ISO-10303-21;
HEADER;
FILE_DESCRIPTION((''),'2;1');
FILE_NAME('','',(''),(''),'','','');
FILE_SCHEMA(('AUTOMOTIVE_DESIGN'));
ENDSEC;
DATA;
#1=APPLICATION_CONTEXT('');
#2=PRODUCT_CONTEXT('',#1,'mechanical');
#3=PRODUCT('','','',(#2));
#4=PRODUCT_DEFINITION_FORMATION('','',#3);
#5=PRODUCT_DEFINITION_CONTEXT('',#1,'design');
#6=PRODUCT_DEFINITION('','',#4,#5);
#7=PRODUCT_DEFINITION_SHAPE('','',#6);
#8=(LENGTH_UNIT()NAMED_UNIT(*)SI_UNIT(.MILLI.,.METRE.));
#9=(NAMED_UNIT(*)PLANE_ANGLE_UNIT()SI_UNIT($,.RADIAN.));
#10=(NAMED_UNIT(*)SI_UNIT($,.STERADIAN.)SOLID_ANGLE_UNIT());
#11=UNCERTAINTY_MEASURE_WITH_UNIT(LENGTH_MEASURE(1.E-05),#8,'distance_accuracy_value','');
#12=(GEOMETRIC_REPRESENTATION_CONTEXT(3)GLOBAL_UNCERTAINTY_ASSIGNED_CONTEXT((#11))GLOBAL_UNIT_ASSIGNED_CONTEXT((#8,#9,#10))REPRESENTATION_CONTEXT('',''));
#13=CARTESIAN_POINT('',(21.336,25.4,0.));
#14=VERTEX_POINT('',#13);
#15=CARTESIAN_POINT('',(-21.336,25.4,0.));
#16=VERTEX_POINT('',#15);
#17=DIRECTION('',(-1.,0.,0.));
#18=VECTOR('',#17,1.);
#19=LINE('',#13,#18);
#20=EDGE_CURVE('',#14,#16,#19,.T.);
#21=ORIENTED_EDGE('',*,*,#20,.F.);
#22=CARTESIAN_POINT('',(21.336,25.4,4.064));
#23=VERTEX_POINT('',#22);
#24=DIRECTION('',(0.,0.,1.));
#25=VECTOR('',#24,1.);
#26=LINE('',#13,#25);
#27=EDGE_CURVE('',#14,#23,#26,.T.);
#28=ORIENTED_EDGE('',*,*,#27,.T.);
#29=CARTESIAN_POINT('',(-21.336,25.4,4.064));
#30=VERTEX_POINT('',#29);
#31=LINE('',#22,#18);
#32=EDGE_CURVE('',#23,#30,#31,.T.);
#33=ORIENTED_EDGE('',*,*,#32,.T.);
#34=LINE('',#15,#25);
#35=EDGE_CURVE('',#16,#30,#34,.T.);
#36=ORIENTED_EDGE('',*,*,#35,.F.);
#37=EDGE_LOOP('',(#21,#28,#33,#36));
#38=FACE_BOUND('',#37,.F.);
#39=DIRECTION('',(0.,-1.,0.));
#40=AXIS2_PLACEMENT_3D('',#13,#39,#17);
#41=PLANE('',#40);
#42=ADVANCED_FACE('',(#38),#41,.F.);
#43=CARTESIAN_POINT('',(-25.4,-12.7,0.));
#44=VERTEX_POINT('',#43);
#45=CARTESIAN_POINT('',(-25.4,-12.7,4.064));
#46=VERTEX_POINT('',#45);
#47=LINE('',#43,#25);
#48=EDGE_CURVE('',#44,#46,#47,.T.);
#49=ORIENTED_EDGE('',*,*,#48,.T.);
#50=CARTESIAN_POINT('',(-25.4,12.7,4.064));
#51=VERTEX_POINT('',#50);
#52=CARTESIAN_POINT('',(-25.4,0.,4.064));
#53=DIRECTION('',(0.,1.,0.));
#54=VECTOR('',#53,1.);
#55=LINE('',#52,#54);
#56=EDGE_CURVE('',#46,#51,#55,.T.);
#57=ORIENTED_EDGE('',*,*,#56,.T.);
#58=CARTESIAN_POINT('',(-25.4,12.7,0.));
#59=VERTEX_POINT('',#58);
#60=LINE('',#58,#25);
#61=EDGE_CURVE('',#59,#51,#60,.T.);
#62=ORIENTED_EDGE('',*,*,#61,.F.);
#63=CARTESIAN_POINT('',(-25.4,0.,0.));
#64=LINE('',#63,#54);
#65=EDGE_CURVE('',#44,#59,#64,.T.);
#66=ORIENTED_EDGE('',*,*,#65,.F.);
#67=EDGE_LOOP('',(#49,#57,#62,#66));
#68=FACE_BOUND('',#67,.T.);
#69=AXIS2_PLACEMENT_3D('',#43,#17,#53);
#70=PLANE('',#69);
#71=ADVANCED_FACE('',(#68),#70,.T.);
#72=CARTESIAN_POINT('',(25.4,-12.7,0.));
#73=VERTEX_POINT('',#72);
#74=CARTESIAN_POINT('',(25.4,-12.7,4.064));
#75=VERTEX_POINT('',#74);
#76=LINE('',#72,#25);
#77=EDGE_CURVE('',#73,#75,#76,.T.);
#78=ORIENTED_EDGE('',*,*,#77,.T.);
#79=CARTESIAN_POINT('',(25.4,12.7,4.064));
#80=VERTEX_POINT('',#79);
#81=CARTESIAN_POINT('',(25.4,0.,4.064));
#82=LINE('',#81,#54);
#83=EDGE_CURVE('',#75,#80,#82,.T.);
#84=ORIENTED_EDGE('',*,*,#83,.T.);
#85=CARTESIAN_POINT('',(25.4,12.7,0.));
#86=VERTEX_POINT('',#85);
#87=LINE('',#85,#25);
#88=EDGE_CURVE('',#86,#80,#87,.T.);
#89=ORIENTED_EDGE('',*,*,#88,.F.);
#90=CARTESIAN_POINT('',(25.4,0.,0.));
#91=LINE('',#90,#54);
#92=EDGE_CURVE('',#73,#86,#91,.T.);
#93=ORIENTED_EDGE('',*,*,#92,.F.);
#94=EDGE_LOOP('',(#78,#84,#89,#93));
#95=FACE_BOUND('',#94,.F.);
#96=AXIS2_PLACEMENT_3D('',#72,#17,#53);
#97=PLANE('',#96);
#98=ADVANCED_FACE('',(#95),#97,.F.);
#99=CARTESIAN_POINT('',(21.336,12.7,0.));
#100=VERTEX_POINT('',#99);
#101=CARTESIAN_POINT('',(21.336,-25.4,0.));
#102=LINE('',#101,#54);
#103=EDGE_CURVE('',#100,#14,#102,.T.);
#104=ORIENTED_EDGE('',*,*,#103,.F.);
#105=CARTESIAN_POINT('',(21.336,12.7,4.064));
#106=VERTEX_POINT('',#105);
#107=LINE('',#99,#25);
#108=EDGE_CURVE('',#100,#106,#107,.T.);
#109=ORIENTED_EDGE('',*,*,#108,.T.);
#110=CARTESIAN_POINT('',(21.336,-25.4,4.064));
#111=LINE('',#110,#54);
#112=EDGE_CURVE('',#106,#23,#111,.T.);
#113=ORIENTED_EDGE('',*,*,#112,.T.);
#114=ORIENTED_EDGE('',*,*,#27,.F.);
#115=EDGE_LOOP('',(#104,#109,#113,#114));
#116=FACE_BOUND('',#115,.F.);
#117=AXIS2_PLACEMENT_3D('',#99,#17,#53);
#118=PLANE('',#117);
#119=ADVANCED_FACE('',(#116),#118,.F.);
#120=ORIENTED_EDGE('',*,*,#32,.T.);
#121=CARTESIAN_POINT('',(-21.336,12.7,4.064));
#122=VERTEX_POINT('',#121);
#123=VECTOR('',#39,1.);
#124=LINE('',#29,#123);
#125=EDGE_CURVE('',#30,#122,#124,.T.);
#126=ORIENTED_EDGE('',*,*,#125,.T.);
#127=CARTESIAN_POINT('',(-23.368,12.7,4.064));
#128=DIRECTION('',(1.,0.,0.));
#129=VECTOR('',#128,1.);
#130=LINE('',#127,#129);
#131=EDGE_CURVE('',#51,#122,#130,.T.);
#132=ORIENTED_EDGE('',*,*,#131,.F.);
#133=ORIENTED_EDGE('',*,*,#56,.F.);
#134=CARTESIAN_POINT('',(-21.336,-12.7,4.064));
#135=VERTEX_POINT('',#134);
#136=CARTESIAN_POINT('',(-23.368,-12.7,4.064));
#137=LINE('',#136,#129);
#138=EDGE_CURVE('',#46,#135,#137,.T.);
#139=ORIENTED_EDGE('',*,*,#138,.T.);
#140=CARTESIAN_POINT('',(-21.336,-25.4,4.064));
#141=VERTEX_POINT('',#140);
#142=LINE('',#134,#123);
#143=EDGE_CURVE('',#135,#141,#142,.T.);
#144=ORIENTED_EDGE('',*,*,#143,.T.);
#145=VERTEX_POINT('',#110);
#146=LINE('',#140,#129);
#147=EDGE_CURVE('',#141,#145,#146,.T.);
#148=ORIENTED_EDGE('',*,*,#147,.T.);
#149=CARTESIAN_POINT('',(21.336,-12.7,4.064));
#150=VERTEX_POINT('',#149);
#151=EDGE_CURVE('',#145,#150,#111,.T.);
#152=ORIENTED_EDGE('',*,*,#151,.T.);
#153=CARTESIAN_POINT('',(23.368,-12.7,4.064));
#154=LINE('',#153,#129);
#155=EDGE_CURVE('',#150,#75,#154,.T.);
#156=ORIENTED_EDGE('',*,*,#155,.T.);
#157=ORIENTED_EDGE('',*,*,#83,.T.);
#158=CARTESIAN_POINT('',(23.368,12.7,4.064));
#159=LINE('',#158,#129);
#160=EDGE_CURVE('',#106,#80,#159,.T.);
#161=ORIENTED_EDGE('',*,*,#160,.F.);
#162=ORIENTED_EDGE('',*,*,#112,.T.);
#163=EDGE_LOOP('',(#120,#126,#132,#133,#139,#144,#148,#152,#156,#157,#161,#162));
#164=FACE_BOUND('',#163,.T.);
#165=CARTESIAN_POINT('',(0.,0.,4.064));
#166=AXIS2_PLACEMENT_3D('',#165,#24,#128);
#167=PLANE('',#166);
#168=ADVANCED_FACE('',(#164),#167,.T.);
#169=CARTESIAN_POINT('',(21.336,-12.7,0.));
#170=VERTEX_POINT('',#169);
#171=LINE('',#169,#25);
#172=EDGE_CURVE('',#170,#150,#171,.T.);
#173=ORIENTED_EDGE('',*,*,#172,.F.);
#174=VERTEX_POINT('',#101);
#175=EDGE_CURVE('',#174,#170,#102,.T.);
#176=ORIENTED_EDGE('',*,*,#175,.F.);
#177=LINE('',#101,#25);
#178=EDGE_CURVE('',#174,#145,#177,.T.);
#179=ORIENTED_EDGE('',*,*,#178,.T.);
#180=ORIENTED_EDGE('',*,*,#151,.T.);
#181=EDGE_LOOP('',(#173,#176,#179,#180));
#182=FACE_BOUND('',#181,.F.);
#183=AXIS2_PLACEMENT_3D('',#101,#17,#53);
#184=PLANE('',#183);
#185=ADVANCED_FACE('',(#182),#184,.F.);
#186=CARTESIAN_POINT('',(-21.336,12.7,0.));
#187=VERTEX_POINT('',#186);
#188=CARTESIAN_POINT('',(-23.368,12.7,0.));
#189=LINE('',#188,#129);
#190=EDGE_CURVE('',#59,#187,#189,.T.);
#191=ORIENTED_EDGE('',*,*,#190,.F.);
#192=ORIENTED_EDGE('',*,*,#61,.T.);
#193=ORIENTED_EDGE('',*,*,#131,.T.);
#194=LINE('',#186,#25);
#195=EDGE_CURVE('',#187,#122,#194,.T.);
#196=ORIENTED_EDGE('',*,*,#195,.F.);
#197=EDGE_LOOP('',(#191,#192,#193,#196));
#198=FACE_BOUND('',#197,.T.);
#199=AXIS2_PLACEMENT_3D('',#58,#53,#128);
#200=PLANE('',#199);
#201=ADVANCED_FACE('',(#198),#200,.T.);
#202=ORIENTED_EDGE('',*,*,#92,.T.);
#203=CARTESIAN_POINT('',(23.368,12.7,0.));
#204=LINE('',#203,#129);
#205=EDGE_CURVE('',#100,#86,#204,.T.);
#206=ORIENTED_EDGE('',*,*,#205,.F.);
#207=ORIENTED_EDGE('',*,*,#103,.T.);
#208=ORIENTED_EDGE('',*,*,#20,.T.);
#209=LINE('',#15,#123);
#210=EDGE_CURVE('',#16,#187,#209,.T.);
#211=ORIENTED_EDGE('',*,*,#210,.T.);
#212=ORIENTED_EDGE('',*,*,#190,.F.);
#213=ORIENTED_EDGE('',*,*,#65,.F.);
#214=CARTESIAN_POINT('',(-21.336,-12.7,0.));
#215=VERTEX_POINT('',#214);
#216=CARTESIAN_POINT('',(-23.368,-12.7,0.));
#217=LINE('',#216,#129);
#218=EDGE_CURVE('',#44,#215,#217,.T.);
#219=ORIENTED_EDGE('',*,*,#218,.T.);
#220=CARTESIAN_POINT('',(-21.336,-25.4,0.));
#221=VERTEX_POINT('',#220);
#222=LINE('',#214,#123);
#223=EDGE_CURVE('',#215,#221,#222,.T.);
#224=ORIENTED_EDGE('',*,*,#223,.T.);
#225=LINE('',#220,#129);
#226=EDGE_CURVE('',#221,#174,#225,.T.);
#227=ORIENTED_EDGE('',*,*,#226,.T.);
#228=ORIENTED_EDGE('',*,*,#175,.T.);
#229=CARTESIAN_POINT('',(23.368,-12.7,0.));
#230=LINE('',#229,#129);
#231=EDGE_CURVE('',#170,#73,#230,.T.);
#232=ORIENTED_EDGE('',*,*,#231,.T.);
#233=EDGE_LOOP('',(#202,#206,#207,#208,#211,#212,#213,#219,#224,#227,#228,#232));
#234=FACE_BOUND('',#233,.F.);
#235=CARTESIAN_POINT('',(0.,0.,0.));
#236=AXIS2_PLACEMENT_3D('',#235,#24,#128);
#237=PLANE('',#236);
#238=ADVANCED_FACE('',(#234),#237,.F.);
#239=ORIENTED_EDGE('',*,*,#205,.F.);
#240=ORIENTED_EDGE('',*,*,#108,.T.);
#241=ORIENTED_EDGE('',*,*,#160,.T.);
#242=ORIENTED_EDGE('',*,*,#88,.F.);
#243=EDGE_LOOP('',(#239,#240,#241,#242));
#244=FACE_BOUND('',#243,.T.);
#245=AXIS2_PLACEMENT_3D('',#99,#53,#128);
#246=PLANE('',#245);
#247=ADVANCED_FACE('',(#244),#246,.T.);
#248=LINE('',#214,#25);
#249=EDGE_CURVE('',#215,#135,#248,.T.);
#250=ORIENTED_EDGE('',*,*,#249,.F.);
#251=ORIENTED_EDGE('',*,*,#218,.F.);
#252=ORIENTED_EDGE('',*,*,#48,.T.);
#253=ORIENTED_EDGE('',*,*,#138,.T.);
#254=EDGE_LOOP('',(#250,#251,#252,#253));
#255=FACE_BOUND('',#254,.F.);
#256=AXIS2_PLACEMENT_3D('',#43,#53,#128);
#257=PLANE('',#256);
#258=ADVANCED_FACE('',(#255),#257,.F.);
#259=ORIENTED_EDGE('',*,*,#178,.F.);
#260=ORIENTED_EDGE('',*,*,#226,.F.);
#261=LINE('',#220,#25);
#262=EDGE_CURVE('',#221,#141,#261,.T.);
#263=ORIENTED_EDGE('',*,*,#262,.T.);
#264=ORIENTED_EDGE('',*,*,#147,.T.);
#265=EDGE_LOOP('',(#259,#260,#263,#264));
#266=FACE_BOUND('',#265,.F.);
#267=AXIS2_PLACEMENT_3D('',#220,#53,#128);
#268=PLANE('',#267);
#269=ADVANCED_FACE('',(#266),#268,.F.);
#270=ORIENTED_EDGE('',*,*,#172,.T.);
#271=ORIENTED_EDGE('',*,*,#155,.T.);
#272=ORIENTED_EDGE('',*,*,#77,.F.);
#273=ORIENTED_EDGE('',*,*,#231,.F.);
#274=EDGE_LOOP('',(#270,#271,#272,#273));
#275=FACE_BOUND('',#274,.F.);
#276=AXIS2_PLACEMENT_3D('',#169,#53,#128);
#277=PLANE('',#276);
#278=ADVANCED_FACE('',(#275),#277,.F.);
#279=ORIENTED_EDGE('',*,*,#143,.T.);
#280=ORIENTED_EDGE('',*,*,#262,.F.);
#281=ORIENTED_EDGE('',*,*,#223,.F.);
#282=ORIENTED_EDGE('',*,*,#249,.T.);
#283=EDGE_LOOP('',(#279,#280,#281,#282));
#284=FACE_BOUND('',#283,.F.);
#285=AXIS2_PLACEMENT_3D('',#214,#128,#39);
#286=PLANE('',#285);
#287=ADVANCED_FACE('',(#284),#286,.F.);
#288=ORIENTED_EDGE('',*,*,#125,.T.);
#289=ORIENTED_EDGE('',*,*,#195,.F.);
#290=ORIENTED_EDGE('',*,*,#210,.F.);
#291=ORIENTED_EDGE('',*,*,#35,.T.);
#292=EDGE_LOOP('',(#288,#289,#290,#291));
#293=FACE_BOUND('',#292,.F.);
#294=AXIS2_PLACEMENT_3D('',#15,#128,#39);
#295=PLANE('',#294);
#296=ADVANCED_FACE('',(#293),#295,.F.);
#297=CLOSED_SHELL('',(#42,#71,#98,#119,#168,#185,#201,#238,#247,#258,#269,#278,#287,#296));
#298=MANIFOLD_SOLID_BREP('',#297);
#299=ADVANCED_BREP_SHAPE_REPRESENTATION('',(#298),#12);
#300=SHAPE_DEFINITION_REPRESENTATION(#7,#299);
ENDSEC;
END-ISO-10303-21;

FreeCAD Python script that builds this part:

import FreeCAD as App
import Part
import Sketcher
from FreeCAD import Vector
Q = App.Units.Quantity

doc = App.newDocument("Part")
body = doc.addObject("PartDesign::Body", "Body")

sketch1 = body.newObject("Sketcher::SketchObject", "Sketch")
sketch1.AttachmentSupport = (doc.getObject("XY_Plane"), [""])
sketch1.MapMode = "FlatFace"
sketch1.addGeometry([
    Part.LineSegment(Vector(21.3, 25.4, 0), Vector(-21.3, 25.4, 0)),
    Part.LineSegment(Vector(-21.3, 25.4, 0), Vector(-21.3, 12.7, 0)),
    Part.LineSegment(Vector(-21.3, 12.7, 0), Vector(-25.4, 12.7, 0)),
    Part.LineSegment(Vector(-25.4, 12.7, 0), Vector(-25.4, -12.7, 0)),
    Part.LineSegment(Vector(-25.4, -12.7, 0), Vector(-21.3, -12.7, 0)),
    Part.LineSegment(Vector(-21.3, -12.7, 0), Vector(-21.3, -25.4, 0)),
    Part.LineSegment(Vector(-21.3, -25.4, 0), Vector(21.3, -25.4, 0)),
    Part.LineSegment(Vector(21.3, -25.4, 0), Vector(21.3, -12.7, 0)),
    Part.LineSegment(Vector(21.3, -12.7, 0), Vector(25.4, -12.7, 0)),
    Part.LineSegment(Vector(25.4, -12.7, 0), Vector(25.4, 12.7, 0)),
    Part.LineSegment(Vector(25.4, 12.7, 0), Vector(21.3, 12.7, 0)),
    Part.LineSegment(Vector(21.3, 12.7, 0), Vector(21.3, 25.4, 0)),
], False)
sketch1.addConstraint([
    Sketcher.Constraint("Coincident", 0, 2, 1, 1),
    Sketcher.Constraint("Coincident", 1, 2, 2, 1),
    Sketcher.Constraint("Coincident", 2, 2, 3, 1),
    Sketcher.Constraint("Coincident", 3, 2, 4, 1),
    Sketcher.Constraint("Coincident", 4, 2, 5, 1),
    Sketcher.Constraint("Coincident", 5, 2, 6, 1),
    Sketcher.Constraint("Coincident", 6, 2, 7, 1),
    Sketcher.Constraint("Coincident", 7, 2, 8, 1),
    Sketcher.Constraint("Coincident", 8, 2, 9, 1),
    Sketcher.Constraint("Coincident", 9, 2, 10, 1),
    Sketcher.Constraint("Coincident", 10, 2, 11, 1),
    Sketcher.Constraint("Coincident", 11, 2, 0, 1),
    Sketcher.Constraint("Horizontal", 0),
    Sketcher.Constraint("Vertical", 1),
    Sketcher.Constraint("Horizontal", 2),
    Sketcher.Constraint("Vertical", 3),
    Sketcher.Constraint("Horizontal", 4),
    Sketcher.Constraint("Vertical", 5),
    Sketcher.Constraint("Horizontal", 6),
    Sketcher.Constraint("Vertical", 7),
    Sketcher.Constraint("Horizontal", 8),
    Sketcher.Constraint("Vertical", 9),
    Sketcher.Constraint("Horizontal", 10),
    Sketcher.Constraint("Vertical", 11),
    Sketcher.Constraint("Symmetric", 0, 2, 6, 2, -1, 1),
    Sketcher.Constraint("Symmetric", 2, 2, 8, 2, -1, 1),
    Sketcher.Constraint("Symmetric", 4, 2, 10, 2, -1, 1),
    Sketcher.Constraint("Symmetric", 4, 2, 7, 2, -2),
    Sketcher.Constraint("DistanceY", 3, 2, 3, 1, Q("1 in")),
    Sketcher.Constraint("DistanceY", 1, 2, 1, 1, Q("0.5 in")),
    Sketcher.Constraint("DistanceX", 2, 2, -1, 1, Q("1 in")),
    Sketcher.Constraint("DistanceX", 0, 2, 0, 1, Q("1.68 in")),
])
pad1 = body.newObject("PartDesign::Pad", "Pad")
pad1.Profile = sketch1
pad1.Length = Q("0.16 in")

doc.recompute()
